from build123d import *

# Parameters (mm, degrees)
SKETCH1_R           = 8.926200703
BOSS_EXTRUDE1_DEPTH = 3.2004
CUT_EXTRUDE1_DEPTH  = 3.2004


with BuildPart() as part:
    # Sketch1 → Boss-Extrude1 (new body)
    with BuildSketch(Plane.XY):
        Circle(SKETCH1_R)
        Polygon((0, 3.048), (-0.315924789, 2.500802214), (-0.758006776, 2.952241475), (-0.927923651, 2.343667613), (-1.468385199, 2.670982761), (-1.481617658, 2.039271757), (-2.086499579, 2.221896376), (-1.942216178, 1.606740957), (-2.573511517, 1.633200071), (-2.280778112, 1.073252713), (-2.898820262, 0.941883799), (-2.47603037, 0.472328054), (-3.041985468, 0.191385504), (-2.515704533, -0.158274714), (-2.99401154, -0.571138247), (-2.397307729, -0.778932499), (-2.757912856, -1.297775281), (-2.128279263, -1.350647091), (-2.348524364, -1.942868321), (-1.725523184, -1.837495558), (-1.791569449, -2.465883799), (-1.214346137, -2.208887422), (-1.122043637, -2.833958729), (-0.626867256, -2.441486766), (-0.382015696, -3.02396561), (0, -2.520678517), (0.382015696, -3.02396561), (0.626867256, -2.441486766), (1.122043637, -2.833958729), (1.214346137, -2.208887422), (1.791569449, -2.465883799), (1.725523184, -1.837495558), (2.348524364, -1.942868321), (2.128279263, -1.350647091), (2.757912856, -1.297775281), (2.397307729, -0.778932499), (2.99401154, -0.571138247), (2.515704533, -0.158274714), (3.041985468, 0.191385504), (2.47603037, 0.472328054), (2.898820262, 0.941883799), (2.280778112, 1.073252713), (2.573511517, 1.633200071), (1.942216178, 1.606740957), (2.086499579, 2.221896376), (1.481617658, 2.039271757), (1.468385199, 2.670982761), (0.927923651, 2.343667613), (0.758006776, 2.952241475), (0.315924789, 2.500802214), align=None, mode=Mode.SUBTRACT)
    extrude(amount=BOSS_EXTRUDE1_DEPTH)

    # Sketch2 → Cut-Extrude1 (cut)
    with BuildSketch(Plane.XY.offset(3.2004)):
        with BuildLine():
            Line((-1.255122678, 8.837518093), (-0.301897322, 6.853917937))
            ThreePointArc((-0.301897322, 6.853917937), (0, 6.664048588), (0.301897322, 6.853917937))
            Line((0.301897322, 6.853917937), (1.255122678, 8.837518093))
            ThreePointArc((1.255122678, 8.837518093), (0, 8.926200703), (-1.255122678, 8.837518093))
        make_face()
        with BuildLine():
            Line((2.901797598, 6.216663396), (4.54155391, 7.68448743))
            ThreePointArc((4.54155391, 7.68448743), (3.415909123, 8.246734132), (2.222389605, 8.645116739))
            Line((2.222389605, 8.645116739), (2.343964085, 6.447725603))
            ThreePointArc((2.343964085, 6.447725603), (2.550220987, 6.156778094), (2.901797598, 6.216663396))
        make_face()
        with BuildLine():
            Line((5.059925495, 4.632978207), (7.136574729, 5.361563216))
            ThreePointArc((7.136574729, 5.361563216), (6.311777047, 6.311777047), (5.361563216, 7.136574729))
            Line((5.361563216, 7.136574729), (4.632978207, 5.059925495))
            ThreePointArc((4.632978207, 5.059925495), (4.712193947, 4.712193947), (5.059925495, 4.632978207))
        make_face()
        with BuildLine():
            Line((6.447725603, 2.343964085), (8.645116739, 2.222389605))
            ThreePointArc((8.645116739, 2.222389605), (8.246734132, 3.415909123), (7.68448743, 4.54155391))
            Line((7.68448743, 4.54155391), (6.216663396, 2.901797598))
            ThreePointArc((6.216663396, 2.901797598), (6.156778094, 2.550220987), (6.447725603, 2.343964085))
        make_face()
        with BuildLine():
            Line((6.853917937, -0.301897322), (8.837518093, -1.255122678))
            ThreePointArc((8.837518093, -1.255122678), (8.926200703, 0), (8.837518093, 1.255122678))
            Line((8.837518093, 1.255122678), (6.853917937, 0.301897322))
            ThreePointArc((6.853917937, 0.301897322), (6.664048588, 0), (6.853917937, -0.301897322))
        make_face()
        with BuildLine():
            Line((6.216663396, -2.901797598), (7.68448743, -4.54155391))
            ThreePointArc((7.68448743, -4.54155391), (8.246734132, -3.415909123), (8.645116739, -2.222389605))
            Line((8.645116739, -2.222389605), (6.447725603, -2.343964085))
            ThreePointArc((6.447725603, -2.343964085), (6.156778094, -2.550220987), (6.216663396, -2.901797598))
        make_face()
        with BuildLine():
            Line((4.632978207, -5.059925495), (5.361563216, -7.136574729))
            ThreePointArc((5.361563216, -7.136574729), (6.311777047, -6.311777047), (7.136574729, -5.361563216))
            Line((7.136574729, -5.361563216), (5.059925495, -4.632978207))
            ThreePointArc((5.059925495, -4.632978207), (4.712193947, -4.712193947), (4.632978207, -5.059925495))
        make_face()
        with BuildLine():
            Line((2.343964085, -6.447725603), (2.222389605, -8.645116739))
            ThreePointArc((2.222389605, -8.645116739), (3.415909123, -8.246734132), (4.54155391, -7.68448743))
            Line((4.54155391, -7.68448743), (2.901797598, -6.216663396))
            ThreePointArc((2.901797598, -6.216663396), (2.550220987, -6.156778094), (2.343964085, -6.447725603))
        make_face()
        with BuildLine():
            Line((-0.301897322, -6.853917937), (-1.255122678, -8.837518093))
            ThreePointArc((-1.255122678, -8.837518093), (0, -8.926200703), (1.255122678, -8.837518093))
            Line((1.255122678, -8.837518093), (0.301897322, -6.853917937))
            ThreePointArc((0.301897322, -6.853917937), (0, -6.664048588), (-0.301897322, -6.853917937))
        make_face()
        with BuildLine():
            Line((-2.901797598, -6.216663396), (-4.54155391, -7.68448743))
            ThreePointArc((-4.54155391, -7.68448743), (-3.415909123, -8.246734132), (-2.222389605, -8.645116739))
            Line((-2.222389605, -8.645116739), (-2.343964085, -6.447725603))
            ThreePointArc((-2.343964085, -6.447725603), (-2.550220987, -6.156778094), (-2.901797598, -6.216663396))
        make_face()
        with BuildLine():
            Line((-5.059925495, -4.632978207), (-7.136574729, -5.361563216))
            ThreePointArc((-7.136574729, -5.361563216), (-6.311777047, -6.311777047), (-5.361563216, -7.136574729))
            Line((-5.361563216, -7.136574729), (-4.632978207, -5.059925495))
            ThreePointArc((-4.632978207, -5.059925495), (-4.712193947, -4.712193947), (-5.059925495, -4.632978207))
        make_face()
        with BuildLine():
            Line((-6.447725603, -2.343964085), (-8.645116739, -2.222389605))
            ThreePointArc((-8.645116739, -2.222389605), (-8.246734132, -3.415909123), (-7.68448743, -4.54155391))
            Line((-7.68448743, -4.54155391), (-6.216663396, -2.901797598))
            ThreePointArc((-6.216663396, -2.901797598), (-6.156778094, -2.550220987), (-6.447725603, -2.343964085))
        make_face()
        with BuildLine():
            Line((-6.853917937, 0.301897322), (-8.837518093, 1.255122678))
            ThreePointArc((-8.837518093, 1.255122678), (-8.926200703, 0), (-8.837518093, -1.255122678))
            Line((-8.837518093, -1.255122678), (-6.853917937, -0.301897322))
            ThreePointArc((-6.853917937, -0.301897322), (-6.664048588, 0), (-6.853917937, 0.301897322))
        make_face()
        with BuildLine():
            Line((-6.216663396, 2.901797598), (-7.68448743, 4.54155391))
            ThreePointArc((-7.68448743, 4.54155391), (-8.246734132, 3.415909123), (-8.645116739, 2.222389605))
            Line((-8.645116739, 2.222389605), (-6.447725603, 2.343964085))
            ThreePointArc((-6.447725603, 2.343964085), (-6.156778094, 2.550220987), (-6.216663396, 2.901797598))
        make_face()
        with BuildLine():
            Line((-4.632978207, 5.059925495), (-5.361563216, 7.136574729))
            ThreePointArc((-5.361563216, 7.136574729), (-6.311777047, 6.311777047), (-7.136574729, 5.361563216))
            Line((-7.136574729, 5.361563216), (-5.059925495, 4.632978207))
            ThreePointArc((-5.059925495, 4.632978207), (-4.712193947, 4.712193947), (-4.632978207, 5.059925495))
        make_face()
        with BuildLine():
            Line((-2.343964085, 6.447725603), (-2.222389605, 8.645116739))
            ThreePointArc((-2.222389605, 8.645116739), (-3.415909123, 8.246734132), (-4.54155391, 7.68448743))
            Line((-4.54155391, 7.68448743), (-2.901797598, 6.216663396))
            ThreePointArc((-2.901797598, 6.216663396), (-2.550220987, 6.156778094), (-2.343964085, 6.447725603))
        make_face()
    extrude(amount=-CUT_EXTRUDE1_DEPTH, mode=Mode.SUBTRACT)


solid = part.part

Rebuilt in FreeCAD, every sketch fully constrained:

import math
import FreeCAD as App
import Part
import Sketcher

V = App.Vector
Q = App.Units.Quantity

doc = App.newDocument("Part")
params = doc.addObject("Spreadsheet::Sheet", "Params")
for row, (alias, value) in enumerate([
    ("pad1_length", "0.126 in"),
    ("pocket1_length", "0.126 in"),
], start=1):
    params.set(f"A{row}", alias)
    params.set(f"B{row}", "=" + value)
    params.setAlias(f"B{row}", alias)

body = doc.addObject("PartDesign::Body", "Body")

# Sketch on XY plane
sketch1 = body.newObject("Sketcher::SketchObject", "Sketch")
sketch1.AttachmentSupport = (doc.getObject("XY_Plane"), [""])
sketch1.MapMode = "FlatFace"
sketch1.addGeometry([
    Part.Circle(V(0, 0, 0), V(0, 0, 1), 8.926201),  # 0
    Part.LineSegment(V(-0.315925, 2.500802, 0), V(0, 3.048, 0)),  # 1
    Part.LineSegment(V(0, 3.048, 0), V(0.315925, 2.500802, 0)),  # 2
    Part.LineSegment(V(0.315925, 2.500802, 0), V(0.758007, 2.952241, 0)),  # 3
    Part.LineSegment(V(0.758007, 2.952241, 0), V(0.927924, 2.343668, 0)),  # 4
    Part.LineSegment(V(0.927924, 2.343668, 0), V(1.468385, 2.670983, 0)),  # 5
    Part.LineSegment(V(1.468385, 2.670983, 0), V(1.481618, 2.039272, 0)),  # 6
    Part.LineSegment(V(1.481618, 2.039272, 0), V(2.0865, 2.221896, 0)),  # 7
    Part.LineSegment(V(2.0865, 2.221896, 0), V(1.942216, 1.606741, 0)),  # 8
    Part.LineSegment(V(1.942216, 1.606741, 0), V(2.573512, 1.6332, 0)),  # 9
    Part.LineSegment(V(2.573512, 1.6332, 0), V(2.280778, 1.073253, 0)),  # 10
    Part.LineSegment(V(2.280778, 1.073253, 0), V(2.89882, 0.941884, 0)),  # 11
    Part.LineSegment(V(2.89882, 0.941884, 0), V(2.47603, 0.472328, 0)),  # 12
    Part.LineSegment(V(2.47603, 0.472328, 0), V(3.041985, 0.191386, 0)),  # 13
    Part.LineSegment(V(3.041985, 0.191386, 0), V(2.515705, -0.158275, 0)),  # 14
    Part.LineSegment(V(2.515705, -0.158275, 0), V(2.994012, -0.571138, 0)),  # 15
    Part.LineSegment(V(2.994012, -0.571138, 0), V(2.397308, -0.778932, 0)),  # 16
    Part.LineSegment(V(2.397308, -0.778932, 0), V(2.757913, -1.297775, 0)),  # 17
    Part.LineSegment(V(2.757913, -1.297775, 0), V(2.128279, -1.350647, 0)),  # 18
    Part.LineSegment(V(2.128279, -1.350647, 0), V(2.348524, -1.942868, 0)),  # 19
    Part.LineSegment(V(2.348524, -1.942868, 0), V(1.725523, -1.837496, 0)),  # 20
    Part.LineSegment(V(1.725523, -1.837496, 0), V(1.791569, -2.465884, 0)),  # 21
    Part.LineSegment(V(1.791569, -2.465884, 0), V(1.214346, -2.208887, 0)),  # 22
    Part.LineSegment(V(1.214346, -2.208887, 0), V(1.122044, -2.833959, 0)),  # 23
    Part.LineSegment(V(1.122044, -2.833959, 0), V(0.626867, -2.441487, 0)),  # 24
    Part.LineSegment(V(0.626867, -2.441487, 0), V(0.382016, -3.023966, 0)),  # 25
    Part.LineSegment(V(0.382016, -3.023966, 0), V(0, -2.520679, 0)),  # 26
    Part.LineSegment(V(0, -2.520679, 0), V(-0.382016, -3.023966, 0)),  # 27
    Part.LineSegment(V(-0.382016, -3.023966, 0), V(-0.626867, -2.441487, 0)),  # 28
    Part.LineSegment(V(-0.626867, -2.441487, 0), V(-1.122044, -2.833959, 0)),  # 29
    Part.LineSegment(V(-1.122044, -2.833959, 0), V(-1.214346, -2.208887, 0)),  # 30
    Part.LineSegment(V(-1.214346, -2.208887, 0), V(-1.791569, -2.465884, 0)),  # 31
    Part.LineSegment(V(-1.791569, -2.465884, 0), V(-1.725523, -1.837496, 0)),  # 32
    Part.LineSegment(V(-1.725523, -1.837496, 0), V(-2.348524, -1.942868, 0)),  # 33
    Part.LineSegment(V(-2.348524, -1.942868, 0), V(-2.128279, -1.350647, 0)),  # 34
    Part.LineSegment(V(-2.128279, -1.350647, 0), V(-2.757913, -1.297775, 0)),  # 35
    Part.LineSegment(V(-2.757913, -1.297775, 0), V(-2.397308, -0.778932, 0)),  # 36
    Part.LineSegment(V(-2.397308, -0.778932, 0), V(-2.994012, -0.571138, 0)),  # 37
    Part.LineSegment(V(-2.994012, -0.571138, 0), V(-2.515705, -0.158275, 0)),  # 38
    Part.LineSegment(V(-2.515705, -0.158275, 0), V(-3.041985, 0.191386, 0)),  # 39
    Part.LineSegment(V(-3.041985, 0.191386, 0), V(-2.47603, 0.472328, 0)),  # 40
    Part.LineSegment(V(-2.47603, 0.472328, 0), V(-2.89882, 0.941884, 0)),  # 41
    Part.LineSegment(V(-2.89882, 0.941884, 0), V(-2.280778, 1.073253, 0)),  # 42
    Part.LineSegment(V(-2.280778, 1.073253, 0), V(-2.573512, 1.6332, 0)),  # 43
    Part.LineSegment(V(-2.573512, 1.6332, 0), V(-1.942216, 1.606741, 0)),  # 44
    Part.LineSegment(V(-1.942216, 1.606741, 0), V(-2.0865, 2.221896, 0)),  # 45
    Part.LineSegment(V(-2.0865, 2.221896, 0), V(-1.481618, 2.039272, 0)),  # 46
    Part.LineSegment(V(-1.481618, 2.039272, 0), V(-1.468385, 2.670983, 0)),  # 47
    Part.LineSegment(V(-1.468385, 2.670983, 0), V(-0.927924, 2.343668, 0)),  # 48
    Part.LineSegment(V(-0.927924, 2.343668, 0), V(-0.758007, 2.952241, 0)),  # 49
    Part.LineSegment(V(-0.758007, 2.952241, 0), V(-0.315925, 2.500802, 0)),  # 50
], False)
sketch1.addConstraint([
    Sketcher.Constraint("Coincident", 1, 2, 2, 1),
    Sketcher.Constraint("Coincident", 2, 2, 3, 1),
    Sketcher.Constraint("Coincident", 3, 2, 4, 1),
    Sketcher.Constraint("Coincident", 4, 2, 5, 1),
    Sketcher.Constraint("Coincident", 5, 2, 6, 1),
    Sketcher.Constraint("Coincident", 6, 2, 7, 1),
    Sketcher.Constraint("Coincident", 7, 2, 8, 1),
    Sketcher.Constraint("Coincident", 8, 2, 9, 1),
    Sketcher.Constraint("Coincident", 9, 2, 10, 1),
    Sketcher.Constraint("Coincident", 10, 2, 11, 1),
    Sketcher.Constraint("Coincident", 11, 2, 12, 1),
    Sketcher.Constraint("Coincident", 12, 2, 13, 1),
    Sketcher.Constraint("Coincident", 13, 2, 14, 1),
    Sketcher.Constraint("Coincident", 14, 2, 15, 1),
    Sketcher.Constraint("Coincident", 15, 2, 16, 1),
    Sketcher.Constraint("Coincident", 16, 2, 17, 1),
    Sketcher.Constraint("Coincident", 17, 2, 18, 1),
    Sketcher.Constraint("Coincident", 18, 2, 19, 1),
    Sketcher.Constraint("Coincident", 19, 2, 20, 1),
    Sketcher.Constraint("Coincident", 20, 2, 21, 1),
    Sketcher.Constraint("Coincident", 21, 2, 22, 1),
    Sketcher.Constraint("Coincident", 22, 2, 23, 1),
    Sketcher.Constraint("Coincident", 23, 2, 24, 1),
    Sketcher.Constraint("Coincident", 24, 2, 25, 1),
    Sketcher.Constraint("Coincident", 25, 2, 26, 1),
    Sketcher.Constraint("Coincident", 26, 2, 27, 1),
    Sketcher.Constraint("Coincident", 27, 2, 28, 1),
    Sketcher.Constraint("Coincident", 28, 2, 29, 1),
    Sketcher.Constraint("Coincident", 29, 2, 30, 1),
    Sketcher.Constraint("Coincident", 30, 2, 31, 1),
    Sketcher.Constraint("Coincident", 31, 2, 32, 1),
    Sketcher.Constraint("Coincident", 32, 2, 33, 1),
    Sketcher.Constraint("Coincident", 33, 2, 34, 1),
    Sketcher.Constraint("Coincident", 34, 2, 35, 1),
    Sketcher.Constraint("Coincident", 35, 2, 36, 1),
    Sketcher.Constraint("Coincident", 36, 2, 37, 1),
    Sketcher.Constraint("Coincident", 37, 2, 38, 1),
    Sketcher.Constraint("Coincident", 38, 2, 39, 1),
    Sketcher.Constraint("Coincident", 39, 2, 40, 1),
    Sketcher.Constraint("Coincident", 40, 2, 41, 1),
    Sketcher.Constraint("Coincident", 41, 2, 42, 1),
    Sketcher.Constraint("Coincident", 42, 2, 43, 1),
    Sketcher.Constraint("Coincident", 43, 2, 44, 1),
    Sketcher.Constraint("Coincident", 44, 2, 45, 1),
    Sketcher.Constraint("Coincident", 45, 2, 46, 1),
    Sketcher.Constraint("Coincident", 46, 2, 47, 1),
    Sketcher.Constraint("Coincident", 47, 2, 48, 1),
    Sketcher.Constraint("Coincident", 48, 2, 49, 1),
    Sketcher.Constraint("Coincident", 49, 2, 50, 1),
    Sketcher.Constraint("Coincident", 50, 2, 1, 1),
    Sketcher.Constraint("Coincident", 0, 3, -1, 1),
    Sketcher.Constraint("Symmetric", 25, 2, 27, 2, -2),
    Sketcher.Constraint("Symmetric", 24, 2, 28, 2, -2),
    Sketcher.Constraint("Symmetric", 23, 2, 29, 2, -2),
    Sketcher.Constraint("Symmetric", 22, 2, 30, 2, -2),
    Sketcher.Constraint("Symmetric", 21, 2, 31, 2, -2),
    Sketcher.Constraint("Symmetric", 20, 2, 32, 2, -2),
    Sketcher.Constraint("Symmetric", 19, 2, 33, 2, -2),
    Sketcher.Constraint("Symmetric", 18, 2, 34, 2, -2),
    Sketcher.Constraint("Symmetric", 17, 2, 35, 2, -2),
    Sketcher.Constraint("Symmetric", 16, 2, 36, 2, -2),
    Sketcher.Constraint("Symmetric", 15, 2, 37, 2, -2),
    Sketcher.Constraint("Symmetric", 14, 2, 38, 2, -2),
    Sketcher.Constraint("Symmetric", 13, 2, 39, 2, -2),
    Sketcher.Constraint("Symmetric", 12, 2, 40, 2, -2),
    Sketcher.Constraint("Symmetric", 11, 2, 41, 2, -2),
    Sketcher.Constraint("Symmetric", 10, 2, 42, 2, -2),
    Sketcher.Constraint("Symmetric", 9, 2, 43, 2, -2),
    Sketcher.Constraint("Symmetric", 8, 2, 44, 2, -2),
    Sketcher.Constraint("Symmetric", 7, 2, 45, 2, -2),
    Sketcher.Constraint("Symmetric", 6, 2, 46, 2, -2),
    Sketcher.Constraint("Symmetric", 5, 2, 47, 2, -2),
    Sketcher.Constraint("Symmetric", 4, 2, 48, 2, -2),
    Sketcher.Constraint("Symmetric", 3, 2, 49, 2, -2),
    Sketcher.Constraint("Symmetric", 2, 2, 50, 2, -2),
    Sketcher.Constraint("PointOnObject", 1, 2, -2),
    Sketcher.Constraint("PointOnObject", 26, 2, -2),
    Sketcher.Constraint("Equal", 2, 3),
    Sketcher.Constraint("Equal", 3, 4),
    Sketcher.Constraint("Equal", 4, 5),
    Sketcher.Constraint("Equal", 5, 6),
    Sketcher.Constraint("Equal", 6, 7),
    Sketcher.Constraint("Equal", 7, 8),
    Sketcher.Constraint("Equal", 8, 9),
    Sketcher.Constraint("Equal", 9, 10),
    Sketcher.Constraint("Equal", 10, 11),
    Sketcher.Constraint("Equal", 11, 12),
    Sketcher.Constraint("Equal", 12, 13),
    Sketcher.Constraint("Equal", 13, 14),
    Sketcher.Constraint("Equal", 14, 15),
    Sketcher.Constraint("Equal", 15, 16),
    Sketcher.Constraint("Equal", 16, 17),
    Sketcher.Constraint("Equal", 17, 18),
    Sketcher.Constraint("Equal", 18, 19),
    Sketcher.Constraint("Equal", 19, 20),
    Sketcher.Constraint("Equal", 20, 21),
    Sketcher.Constraint("Equal", 21, 22),
    Sketcher.Constraint("Equal", 22, 23),
    Sketcher.Constraint("Equal", 23, 24),
    Sketcher.Constraint("Equal", 24, 25),
    Sketcher.Constraint("Equal", 25, 26),
    Sketcher.Constraint("Angle", 1, Q("60 deg")),
    Sketcher.Constraint("Angle", 11, Q("-12 deg")),
    Sketcher.Constraint("Angle", 12, Q("-132 deg")),
    Sketcher.Constraint("Angle", 21, Q("-84 deg")),
    Sketcher.Constraint("Angle", 22, Q("156 deg")),
    Sketcher.Constraint("Angle", 3, Q("45.6 deg")),
    Sketcher.Constraint("Angle", 4, Q("-74.4 deg")),
    Sketcher.Constraint("Angle", 5, Q("31.2 deg")),
    Sketcher.Constraint("Angle", 6, Q("-88.8 deg")),
    Sketcher.Constraint("Angle", 7, Q("16.8 deg")),
    Sketcher.Constraint("Angle", 8, Q("-103.2 deg")),
    Sketcher.Constraint("Angle", 9, Q("2.4 deg")),
    Sketcher.Constraint("Angle", 10, Q("-117.6 deg")),
    Sketcher.Constraint("Angle", 13, Q("-26.4 deg")),
    Sketcher.Constraint("Angle", 14, Q("-146.4 deg")),
    Sketcher.Constraint("Angle", 15, Q("-40.8 deg")),
    Sketcher.Constraint("Angle", 16, Q("-160.8 deg")),
    Sketcher.Constraint("Angle", 17, Q("-55.2 deg")),
    Sketcher.Constraint("Angle", 18, Q("-175.2 deg")),
    Sketcher.Constraint("Angle", 19, Q("-69.6 deg")),
    Sketcher.Constraint("Angle", 20, Q("170.4 deg")),
    Sketcher.Constraint("Angle", 23, Q("-98.4 deg")),
    Sketcher.Constraint("Angle", 24, Q("141.6 deg")),
    Sketcher.Constraint("Angle", 25, Q("-112.8 deg")),
    Sketcher.Constraint("Diameter", 0, 17.852401),
    Sketcher.Constraint("DistanceY", -1, 1, 1, 2, Q("0.12 in")),
    Sketcher.Constraint("DistanceY", 2, 2, 5, 2, Q("0.0067 in")),
])
pad1 = body.newObject("PartDesign::Pad", "Pad")
pad1.Profile = sketch1
pad1.setExpression("Length", "Params.pad1_length")

# Sketch on XY plane
sketch2 = body.newObject("Sketcher::SketchObject", "Sketch001")
sketch2.AttachmentSupport = (doc.getObject("XY_Plane"), [""])
sketch2.MapMode = "FlatFace"
sketch2.AttachmentOffset = App.Placement(V(0, 0, 0.126 * 25.4), App.Rotation())
sketch2.addGeometry([
    Part.LineSegment(V(-1.255123, 8.837518, 0), V(-0.301897, 6.853918, 0)),  # 0
    Part.ArcOfCircle(Part.Circle(V(0, 6.998996, 0), V(0, 0, 1), 0.334947), math.radians(-154.33324), math.radians(-25.66676)),  # 1
    Part.LineSegment(V(0.301897, 6.853918, 0), V(1.255123, 8.837518, 0)),  # 2
    Part.ArcOfCircle(Part.Circle(V(0, 0, 0), V(0, 0, 1), 8.926201), math.radians(81.916792), math.radians(98.083208)),  # 3
    Part.LineSegment(V(2.901798, 6.216663, 0), V(4.541554, 7.684487, 0)),  # 4
    Part.ArcOfCircle(Part.Circle(V(0, 0, 0), V(0, 0, 1), 8.926201), math.radians(59.416792), math.radians(75.583208)),  # 5
    Part.LineSegment(V(2.22239, 8.645117, 0), V(2.343964, 6.447726, 0)),  # 6
    Part.ArcOfCircle(Part.Circle(V(2.6784, 6.466229, 0), V(0, 0, 1), 0.334947), math.radians(-176.83324), math.radians(-48.16676)),  # 7
    Part.LineSegment(V(5.059925, 4.632978, 0), V(7.136575, 5.361563, 0)),  # 8
    Part.ArcOfCircle(Part.Circle(V(0, 0, 0), V(0, 0, 1), 8.926201), math.radians(36.916792), math.radians(53.083208)),  # 9
    Part.LineSegment(V(5.361563, 7.136575, 0), V(4.632978, 5.059925, 0)),  # 10
    Part.ArcOfCircle(Part.Circle(V(4.949037, 4.949037, 0), V(0, 0, 1), 0.334947), math.radians(160.66676), math.radians(289.33324)),  # 11
    Part.LineSegment(V(6.447726, 2.343964, 0), V(8.645117, 2.22239, 0)),  # 12
    Part.ArcOfCircle(Part.Circle(V(0, 0, 0), V(0, 0, 1), 8.926201), math.radians(14.416792), math.radians(30.583208)),  # 13
    Part.LineSegment(V(7.684487, 4.541554, 0), V(6.216663, 2.901798, 0)),  # 14
    Part.ArcOfCircle(Part.Circle(V(6.466229, 2.6784, 0), V(0, 0, 1), 0.334947), math.radians(138.16676), math.radians(266.83324)),  # 15
    Part.LineSegment(V(6.853918, -0.301897, 0), V(8.837518, -1.255123, 0)),  # 16
    Part.ArcOfCircle(Part.Circle(V(0, 0, 0), V(0, 0, 1), 8.926201), math.radians(-8.083208), math.radians(8.083208)),  # 17
    Part.LineSegment(V(8.837518, 1.255123, 0), V(6.853918, 0.301897, 0)),  # 18
    Part.ArcOfCircle(Part.Circle(V(6.998996, 0, 0), V(0, 0, 1), 0.334947), math.radians(115.66676), math.radians(244.33324)),  # 19
    Part.LineSegment(V(6.216663, -2.901798, 0), V(7.684487, -4.541554, 0)),  # 20
    Part.ArcOfCircle(Part.Circle(V(0, 0, 0), V(0, 0, 1), 8.926201), math.radians(-30.583208), math.radians(-14.416792)),  # 21
    Part.LineSegment(V(8.645117, -2.22239, 0), V(6.447726, -2.343964, 0)),  # 22
    Part.ArcOfCircle(Part.Circle(V(6.466229, -2.6784, 0), V(0, 0, 1), 0.334947), math.radians(93.16676), math.radians(221.83324)),  # 23
    Part.LineSegment(V(4.632978, -5.059925, 0), V(5.361563, -7.136575, 0)),  # 24
    Part.ArcOfCircle(Part.Circle(V(0, 0, 0), V(0, 0, 1), 8.926201), math.radians(-53.083208), math.radians(-36.916792)),  # 25
    Part.LineSegment(V(7.136575, -5.361563, 0), V(5.059925, -4.632978, 0)),  # 26
    Part.ArcOfCircle(Part.Circle(V(4.949037, -4.949037, 0), V(0, 0, 1), 0.334947), math.radians(70.66676), math.radians(199.33324)),  # 27
    Part.LineSegment(V(2.343964, -6.447726, 0), V(2.22239, -8.645117, 0)),  # 28
    Part.ArcOfCircle(Part.Circle(V(0, 0, 0), V(0, 0, 1), 8.926201), math.radians(-75.583208), math.radians(-59.416792)),  # 29
    Part.LineSegment(V(4.541554, -7.684487, 0), V(2.901798, -6.216663, 0)),  # 30
    Part.ArcOfCircle(Part.Circle(V(2.6784, -6.466229, 0), V(0, 0, 1), 0.334947), math.radians(48.16676), math.radians(176.83324)),  # 31
    Part.LineSegment(V(-0.301897, -6.853918, 0), V(-1.255123, -8.837518, 0)),  # 32
    Part.ArcOfCircle(Part.Circle(V(0, 0, 0), V(0, 0, 1), 8.926201), math.radians(-98.083208), math.radians(-81.916792)),  # 33
    Part.LineSegment(V(1.255123, -8.837518, 0), V(0.301897, -6.853918, 0)),  # 34
    Part.ArcOfCircle(Part.Circle(V(0, -6.998996, 0), V(0, 0, 1), 0.334947), math.radians(25.66676), math.radians(154.33324)),  # 35
    Part.LineSegment(V(-2.901798, -6.216663, 0), V(-4.541554, -7.684487, 0)),  # 36
    Part.ArcOfCircle(Part.Circle(V(0, 0, 0), V(0, 0, 1), 8.926201), math.radians(-120.583208), math.radians(-104.416792)),  # 37
    Part.LineSegment(V(-2.22239, -8.645117, 0), V(-2.343964, -6.447726, 0)),  # 38
    Part.ArcOfCircle(Part.Circle(V(-2.6784, -6.466229, 0), V(0, 0, 1), 0.334947), math.radians(3.16676), math.radians(131.83324)),  # 39
    Part.LineSegment(V(-5.059925, -4.632978, 0), V(-7.136575, -5.361563, 0)),  # 40
    Part.ArcOfCircle(Part.Circle(V(0, 0, 0), V(0, 0, 1), 8.926201), math.radians(-143.083208), math.radians(-126.916792)),  # 41
    Part.LineSegment(V(-5.361563, -7.136575, 0), V(-4.632978, -5.059925, 0)),  # 42
    Part.ArcOfCircle(Part.Circle(V(-4.949037, -4.949037, 0), V(0, 0, 1), 0.334947), math.radians(-19.33324), math.radians(109.33324)),  # 43
    Part.LineSegment(V(-6.447726, -2.343964, 0), V(-8.645117, -2.22239, 0)),  # 44
    Part.ArcOfCircle(Part.Circle(V(0, 0, 0), V(0, 0, 1), 8.926201), math.radians(-165.583208), math.radians(-149.416792)),  # 45
    Part.LineSegment(V(-7.684487, -4.541554, 0), V(-6.216663, -2.901798, 0)),  # 46
    Part.ArcOfCircle(Part.Circle(V(-6.466229, -2.6784, 0), V(0, 0, 1), 0.334947), math.radians(-41.83324), math.radians(86.83324)),  # 47
    Part.LineSegment(V(-6.853918, 0.301897, 0), V(-8.837518, 1.255123, 0)),  # 48
    Part.ArcOfCircle(Part.Circle(V(0, 0, 0), V(0, 0, 1), 8.926201), math.radians(171.916792), math.radians(188.083208)),  # 49
    Part.LineSegment(V(-8.837518, -1.255123, 0), V(-6.853918, -0.301897, 0)),  # 50
    Part.ArcOfCircle(Part.Circle(V(-6.998996, 0, 0), V(0, 0, 1), 0.334947), math.radians(-64.33324), math.radians(64.33324)),  # 51
    Part.LineSegment(V(-6.216663, 2.901798, 0), V(-7.684487, 4.541554, 0)),  # 52
    Part.ArcOfCircle(Part.Circle(V(0, 0, 0), V(0, 0, 1), 8.926201), math.radians(149.416792), math.radians(165.583208)),  # 53
    Part.LineSegment(V(-8.645117, 2.22239, 0), V(-6.447726, 2.343964, 0)),  # 54
    Part.ArcOfCircle(Part.Circle(V(-6.466229, 2.6784, 0), V(0, 0, 1), 0.334947), math.radians(-86.83324), math.radians(41.83324)),  # 55
    Part.LineSegment(V(-4.632978, 5.059925, 0), V(-5.361563, 7.136575, 0)),  # 56
    Part.ArcOfCircle(Part.Circle(V(0, 0, 0), V(0, 0, 1), 8.926201), math.radians(126.916792), math.radians(143.083208)),  # 57
    Part.LineSegment(V(-7.136575, 5.361563, 0), V(-5.059925, 4.632978, 0)),  # 58
    Part.ArcOfCircle(Part.Circle(V(-4.949037, 4.949037, 0), V(0, 0, 1), 0.334947), math.radians(-109.33324), math.radians(19.33324)),  # 59
    Part.LineSegment(V(-2.343964, 6.447726, 0), V(-2.22239, 8.645117, 0)),  # 60
    Part.ArcOfCircle(Part.Circle(V(0, 0, 0), V(0, 0, 1), 8.926201), math.radians(104.416792), math.radians(120.583208)),  # 61
    Part.LineSegment(V(-4.541554, 7.684487, 0), V(-2.901798, 6.216663, 0)),  # 62
    Part.ArcOfCircle(Part.Circle(V(-2.6784, 6.466229, 0), V(0, 0, 1), 0.334947), math.radians(-131.83324), math.radians(-3.16676)),  # 63
], False)
sketch2.addConstraint([
    Sketcher.Constraint("Tangent", 0, 2, 1, 1),
    Sketcher.Constraint("Tangent", 1, 2, 2, 1),
    Sketcher.Constraint("Coincident", 2, 2, 3, 1),
    Sketcher.Constraint("Coincident", 3, 2, 0, 1),
    Sketcher.Constraint("Coincident", 4, 2, 5, 1),
    Sketcher.Constraint("Coincident", 5, 2, 6, 1),
    Sketcher.Constraint("Tangent", 6, 2, 7, 1),
    Sketcher.Constraint("Tangent", 7, 2, 4, 1),
    Sketcher.Constraint("Coincident", 8, 2, 9, 1),
    Sketcher.Constraint("Coincident", 9, 2, 10, 1),
    Sketcher.Constraint("Tangent", 10, 2, 11, 1),
    Sketcher.Constraint("Tangent", 11, 2, 8, 1),
    Sketcher.Constraint("Coincident", 12, 2, 13, 1),
    Sketcher.Constraint("Coincident", 13, 2, 14, 1),
    Sketcher.Constraint("Tangent", 14, 2, 15, 1),
    Sketcher.Constraint("Tangent", 15, 2, 12, 1),
    Sketcher.Constraint("Coincident", 16, 2, 17, 1),
    Sketcher.Constraint("Coincident", 17, 2, 18, 1),
    Sketcher.Constraint("Tangent", 18, 2, 19, 1),
    Sketcher.Constraint("Tangent", 19, 2, 16, 1),
    Sketcher.Constraint("Coincident", 20, 2, 21, 1),
    Sketcher.Constraint("Coincident", 21, 2, 22, 1),
    Sketcher.Constraint("Tangent", 22, 2, 23, 1),
    Sketcher.Constraint("Tangent", 23, 2, 20, 1),
    Sketcher.Constraint("Coincident", 24, 2, 25, 1),
    Sketcher.Constraint("Coincident", 25, 2, 26, 1),
    Sketcher.Constraint("Tangent", 26, 2, 27, 1),
    Sketcher.Constraint("Tangent", 27, 2, 24, 1),
    Sketcher.Constraint("Coincident", 28, 2, 29, 1),
    Sketcher.Constraint("Coincident", 29, 2, 30, 1),
    Sketcher.Constraint("Tangent", 30, 2, 31, 1),
    Sketcher.Constraint("Tangent", 31, 2, 28, 1),
    Sketcher.Constraint("Coincident", 32, 2, 33, 1),
    Sketcher.Constraint("Coincident", 33, 2, 34, 1),
    Sketcher.Constraint("Tangent", 34, 2, 35, 1),
    Sketcher.Constraint("Tangent", 35, 2, 32, 1),
    Sketcher.Constraint("Coincident", 36, 2, 37, 1),
    Sketcher.Constraint("Coincident", 37, 2, 38, 1),
    Sketcher.Constraint("Tangent", 38, 2, 39, 1),
    Sketcher.Constraint("Tangent", 39, 2, 36, 1),
    Sketcher.Constraint("Coincident", 40, 2, 41, 1),
    Sketcher.Constraint("Coincident", 41, 2, 42, 1),
    Sketcher.Constraint("Tangent", 42, 2, 43, 1),
    Sketcher.Constraint("Tangent", 43, 2, 40, 1),
    Sketcher.Constraint("Coincident", 44, 2, 45, 1),
    Sketcher.Constraint("Coincident", 45, 2, 46, 1),
    Sketcher.Constraint("Tangent", 46, 2, 47, 1),
    Sketcher.Constraint("Tangent", 47, 2, 44, 1),
    Sketcher.Constraint("Coincident", 48, 2, 49, 1),
    Sketcher.Constraint("Coincident", 49, 2, 50, 1),
    Sketcher.Constraint("Tangent", 50, 2, 51, 1),
    Sketcher.Constraint("Tangent", 51, 2, 48, 1),
    Sketcher.Constraint("Coincident", 52, 2, 53, 1),
    Sketcher.Constraint("Coincident", 53, 2, 54, 1),
    Sketcher.Constraint("Tangent", 54, 2, 55, 1),
    Sketcher.Constraint("Tangent", 55, 2, 52, 1),
    Sketcher.Constraint("Coincident", 56, 2, 57, 1),
    Sketcher.Constraint("Coincident", 57, 2, 58, 1),
    Sketcher.Constraint("Tangent", 58, 2, 59, 1),
    Sketcher.Constraint("Tangent", 59, 2, 56, 1),
    Sketcher.Constraint("Coincident", 60, 2, 61, 1),
    Sketcher.Constraint("Coincident", 61, 2, 62, 1),
    Sketcher.Constraint("Tangent", 62, 2, 63, 1),
    Sketcher.Constraint("Tangent", 63, 2, 60, 1),
    Sketcher.Constraint("Coincident", 3, 3, -1, 1),
    Sketcher.Constraint("Coincident", 5, 3, -1, 1),
    Sketcher.Constraint("Coincident", 9, 3, -1, 1),
    Sketcher.Constraint("Coincident", 13, 3, -1, 1),
    Sketcher.Constraint("Coincident", 17, 3, -1, 1),
    Sketcher.Constraint("Coincident", 21, 3, -1, 1),
    Sketcher.Constraint("Coincident", 25, 3, -1, 1),
    Sketcher.Constraint("Coincident", 29, 3, -1, 1),
    Sketcher.Constraint("Coincident", 33, 3, -1, 1),
    Sketcher.Constraint("Coincident", 37, 3, -1, 1),
    Sketcher.Constraint("Coincident", 41, 3, -1, 1),
    Sketcher.Constraint("Coincident", 45, 3, -1, 1),
    Sketcher.Constraint("Coincident", 49, 3, -1, 1),
    Sketcher.Constraint("Coincident", 53, 3, -1, 1),
    Sketcher.Constraint("Coincident", 57, 3, -1, 1),
    Sketcher.Constraint("Coincident", 61, 3, -1, 1),
    Sketcher.Constraint("Equal", 3, 5),
    Sketcher.Constraint("Equal", 1, 7),
    Sketcher.Constraint("Equal", 5, 9),
    Sketcher.Constraint("Equal", 7, 11),
    Sketcher.Constraint("Equal", 9, 13),
    Sketcher.Constraint("Equal", 11, 15),
    Sketcher.Constraint("Equal", 13, 17),
    Sketcher.Constraint("Equal", 15, 19),
    Sketcher.Constraint("Equal", 17, 21),
    Sketcher.Constraint("Equal", 19, 23),
    Sketcher.Constraint("Equal", 21, 25),
    Sketcher.Constraint("Equal", 23, 27),
    Sketcher.Constraint("Equal", 25, 29),
    Sketcher.Constraint("Equal", 27, 31),
    Sketcher.Constraint("Equal", 29, 33),
    Sketcher.Constraint("Equal", 31, 35),
    Sketcher.Constraint("Equal", 33, 37),
    Sketcher.Constraint("Equal", 35, 39),
    Sketcher.Constraint("Equal", 37, 41),
    Sketcher.Constraint("Equal", 39, 43),
    Sketcher.Constraint("Equal", 41, 45),
    Sketcher.Constraint("Equal", 43, 47),
    Sketcher.Constraint("Equal", 45, 49),
    Sketcher.Constraint("Equal", 47, 51),
    Sketcher.Constraint("Equal", 49, 53),
    Sketcher.Constraint("Equal", 51, 55),
    Sketcher.Constraint("Equal", 53, 57),
    Sketcher.Constraint("Equal", 55, 59),
    Sketcher.Constraint("Equal", 57, 61),
    Sketcher.Constraint("Equal", 59, 63),
    Sketcher.Constraint("Symmetric", 1, 3, 35, 3, -1, 1),
    Sketcher.Constraint("Symmetric", 7, 3, 39, 3, -1, 1),
    Sketcher.Constraint("Symmetric", 11, 3, 43, 3, -1, 1),
    Sketcher.Constraint("Symmetric", 15, 3, 47, 3, -1, 1),
    Sketcher.Constraint("Symmetric", 19, 3, 51, 3, -1, 1),
    Sketcher.Constraint("Symmetric", 23, 3, 55, 3, -1, 1),
    Sketcher.Constraint("Symmetric", 27, 3, 59, 3, -1, 1),
    Sketcher.Constraint("Symmetric", 31, 3, 63, 3, -1, 1),
    Sketcher.Constraint("Symmetric", 31, 3, 39, 3, -2),
    Sketcher.Constraint("Symmetric", 27, 3, 43, 3, -2),
    Sketcher.Constraint("Symmetric", 23, 3, 47, 3, -2),
    Sketcher.Constraint("Symmetric", 0, 2, 1, 2, -2),
    Sketcher.Constraint("Symmetric", 19, 2, 50, 2, -2),
    Sketcher.Constraint("Perpendicular", 2, 16),
    Sketcher.Constraint("Perpendicular", 0, 18),
    Sketcher.Constraint("Perpendicular", 4, 20),
    Sketcher.Constraint("Perpendicular", 6, 22),
    Sketcher.Constraint("Perpendicular", 8, 24),
    Sketcher.Constraint("Perpendicular", 10, 26),
    Sketcher.Constraint("Perpendicular", 12, 28),
    Sketcher.Constraint("Perpendicular", 14, 30),
    Sketcher.Constraint("Perpendicular", 16, 32),
    Sketcher.Constraint("Perpendicular", 18, 34),
    Sketcher.Constraint("Perpendicular", 20, 36),
    Sketcher.Constraint("Perpendicular", 22, 38),
    Sketcher.Constraint("Perpendicular", 24, 40),
    Sketcher.Constraint("Perpendicular", 26, 42),
    Sketcher.Constraint("Perpendicular", 28, 44),
    Sketcher.Constraint("Perpendicular", 30, 46),
    Sketcher.Constraint("Perpendicular", 32, 48),
    Sketcher.Constraint("Perpendicular", 36, 52),
    Sketcher.Constraint("Perpendicular", 38, 54),
    Sketcher.Constraint("Perpendicular", 40, 56),
    Sketcher.Constraint("Perpendicular", 42, 58),
    Sketcher.Constraint("Perpendicular", 44, 60),
    Sketcher.Constraint("Perpendicular", 46, 62),
    Sketcher.Constraint("Horizontal", 29, 2, 36, 2),
    Sketcher.Constraint("Horizontal", 28, 2, 37, 2),
    Sketcher.Constraint("Horizontal", 25, 2, 40, 2),
    Sketcher.Constraint("Equal", 2, 4),
    Sketcher.Constraint("Equal", 4, 6),
    Sketcher.Constraint("Equal", 6, 8),
    Sketcher.Constraint("Equal", 8, 10),
    Sketcher.Constraint("Equal", 10, 12),
    Sketcher.Constraint("Equal", 12, 14),
    Sketcher.Constraint("Equal", 14, 16),
    Sketcher.Constraint("Radius", 3, 8.926201),
    Sketcher.Constraint("Radius", 1, 0.334947),
    Sketcher.Constraint("DistanceX", -1, 1, 7, 3, 2.6784),
    Sketcher.Constraint("Distance", 0, 2.200752),
    Sketcher.Constraint("DistanceY", -1, 1, 7, 3, 6.466229),
    Sketcher.Constraint("DistanceY", -1, 1, 2, 2, 8.837518),
    Sketcher.Constraint("DistanceX", -1, 1, 10, 2, 4.632978),
])
pocket1 = body.newObject("PartDesign::Pocket", "Pocket")
pocket1.Profile = sketch2
pocket1.setExpression("Length", "Params.pocket1_length")

doc.recompute()
